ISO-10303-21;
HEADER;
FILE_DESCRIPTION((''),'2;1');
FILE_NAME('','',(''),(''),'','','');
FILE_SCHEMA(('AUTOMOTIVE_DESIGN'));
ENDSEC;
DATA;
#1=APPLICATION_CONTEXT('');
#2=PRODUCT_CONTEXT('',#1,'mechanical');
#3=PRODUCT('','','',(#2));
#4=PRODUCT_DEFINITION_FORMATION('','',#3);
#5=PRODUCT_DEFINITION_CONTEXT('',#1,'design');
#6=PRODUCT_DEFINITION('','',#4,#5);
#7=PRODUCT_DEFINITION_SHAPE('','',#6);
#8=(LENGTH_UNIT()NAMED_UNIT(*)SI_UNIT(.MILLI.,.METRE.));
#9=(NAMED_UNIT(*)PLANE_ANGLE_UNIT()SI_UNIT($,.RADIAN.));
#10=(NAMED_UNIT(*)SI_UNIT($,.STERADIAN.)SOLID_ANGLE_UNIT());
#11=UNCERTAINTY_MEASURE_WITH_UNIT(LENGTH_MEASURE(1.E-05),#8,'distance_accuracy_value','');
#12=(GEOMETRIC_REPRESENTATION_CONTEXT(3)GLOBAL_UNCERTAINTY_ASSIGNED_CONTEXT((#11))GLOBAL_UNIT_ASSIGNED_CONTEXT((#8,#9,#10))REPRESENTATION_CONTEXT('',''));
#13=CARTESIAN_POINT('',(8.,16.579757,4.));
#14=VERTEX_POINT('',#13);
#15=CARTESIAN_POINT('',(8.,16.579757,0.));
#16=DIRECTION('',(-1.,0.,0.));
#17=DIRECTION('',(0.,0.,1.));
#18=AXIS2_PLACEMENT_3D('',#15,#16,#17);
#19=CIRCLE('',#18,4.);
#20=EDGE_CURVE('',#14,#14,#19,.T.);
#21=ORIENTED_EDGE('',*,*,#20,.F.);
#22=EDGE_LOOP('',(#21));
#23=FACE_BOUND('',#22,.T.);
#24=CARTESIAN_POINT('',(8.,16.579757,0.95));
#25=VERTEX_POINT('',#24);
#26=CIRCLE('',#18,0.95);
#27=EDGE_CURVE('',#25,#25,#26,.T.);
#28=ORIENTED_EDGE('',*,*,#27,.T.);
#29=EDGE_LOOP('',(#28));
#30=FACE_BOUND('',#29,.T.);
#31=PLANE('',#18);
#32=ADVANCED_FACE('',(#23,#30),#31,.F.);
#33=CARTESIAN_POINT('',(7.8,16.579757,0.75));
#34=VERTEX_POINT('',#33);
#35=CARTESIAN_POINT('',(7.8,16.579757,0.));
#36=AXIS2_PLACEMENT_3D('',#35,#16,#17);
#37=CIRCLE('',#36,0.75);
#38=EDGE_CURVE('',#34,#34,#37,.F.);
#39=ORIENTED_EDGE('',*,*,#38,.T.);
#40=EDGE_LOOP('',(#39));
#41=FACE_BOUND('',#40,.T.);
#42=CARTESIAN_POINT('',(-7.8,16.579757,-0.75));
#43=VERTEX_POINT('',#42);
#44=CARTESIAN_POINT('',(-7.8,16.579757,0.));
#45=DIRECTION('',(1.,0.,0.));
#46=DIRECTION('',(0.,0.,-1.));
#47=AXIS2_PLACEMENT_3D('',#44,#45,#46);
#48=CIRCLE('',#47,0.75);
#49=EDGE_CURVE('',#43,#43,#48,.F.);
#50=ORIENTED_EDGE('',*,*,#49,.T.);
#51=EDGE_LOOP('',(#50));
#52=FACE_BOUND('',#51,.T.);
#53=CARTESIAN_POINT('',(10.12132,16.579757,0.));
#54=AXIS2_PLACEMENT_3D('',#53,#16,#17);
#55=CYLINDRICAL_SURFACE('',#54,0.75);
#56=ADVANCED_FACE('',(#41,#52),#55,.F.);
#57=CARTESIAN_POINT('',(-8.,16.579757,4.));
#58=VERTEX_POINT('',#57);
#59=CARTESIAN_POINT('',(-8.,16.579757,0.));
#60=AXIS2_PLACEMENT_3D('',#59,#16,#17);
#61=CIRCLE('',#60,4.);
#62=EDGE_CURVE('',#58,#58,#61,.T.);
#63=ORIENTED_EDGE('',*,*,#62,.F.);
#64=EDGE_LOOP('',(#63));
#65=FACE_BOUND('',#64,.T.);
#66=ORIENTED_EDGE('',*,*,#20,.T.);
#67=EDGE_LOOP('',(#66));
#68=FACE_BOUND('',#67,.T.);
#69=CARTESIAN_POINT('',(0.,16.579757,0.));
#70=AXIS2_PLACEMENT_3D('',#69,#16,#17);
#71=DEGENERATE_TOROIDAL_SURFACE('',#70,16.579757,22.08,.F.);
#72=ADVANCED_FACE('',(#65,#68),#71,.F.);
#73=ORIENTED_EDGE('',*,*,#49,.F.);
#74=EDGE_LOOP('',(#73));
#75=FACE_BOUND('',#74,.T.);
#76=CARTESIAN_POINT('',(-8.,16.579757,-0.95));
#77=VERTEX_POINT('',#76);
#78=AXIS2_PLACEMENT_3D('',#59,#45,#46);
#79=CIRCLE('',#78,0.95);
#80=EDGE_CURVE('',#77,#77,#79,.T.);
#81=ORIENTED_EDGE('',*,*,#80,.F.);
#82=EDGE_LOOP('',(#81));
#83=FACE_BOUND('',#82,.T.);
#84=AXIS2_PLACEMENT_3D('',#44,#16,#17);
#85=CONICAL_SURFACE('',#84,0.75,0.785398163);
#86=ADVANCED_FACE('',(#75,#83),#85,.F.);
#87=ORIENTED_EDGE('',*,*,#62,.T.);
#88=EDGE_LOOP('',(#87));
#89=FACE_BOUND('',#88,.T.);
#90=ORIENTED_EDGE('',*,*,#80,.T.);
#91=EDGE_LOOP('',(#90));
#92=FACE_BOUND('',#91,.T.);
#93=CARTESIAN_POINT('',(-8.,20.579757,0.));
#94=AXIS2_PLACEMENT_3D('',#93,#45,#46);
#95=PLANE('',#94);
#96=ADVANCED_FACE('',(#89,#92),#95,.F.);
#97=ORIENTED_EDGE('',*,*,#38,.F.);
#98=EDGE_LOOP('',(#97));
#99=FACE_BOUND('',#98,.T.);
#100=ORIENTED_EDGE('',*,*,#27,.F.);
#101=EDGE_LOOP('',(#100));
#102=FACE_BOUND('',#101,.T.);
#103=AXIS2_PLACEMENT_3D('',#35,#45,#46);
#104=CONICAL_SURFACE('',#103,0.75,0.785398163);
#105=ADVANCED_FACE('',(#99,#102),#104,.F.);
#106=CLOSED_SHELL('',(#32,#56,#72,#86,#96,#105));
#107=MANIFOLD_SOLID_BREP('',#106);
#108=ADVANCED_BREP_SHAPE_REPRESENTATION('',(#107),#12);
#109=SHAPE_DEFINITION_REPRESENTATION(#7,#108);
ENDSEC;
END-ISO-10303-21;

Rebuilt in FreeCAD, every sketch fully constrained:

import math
import FreeCAD as App
import Part
import Sketcher
Q = App.Units.Quantity


def edges_at(feature, points):
    """Names of the edges that pass closest to the given points."""
    edges = feature.Shape.Edges
    near = lambda p: min(range(len(edges)), key=lambda i: edges[i].distToShape(Part.Vertex(*p))[0])
    return sorted({f"Edge{near(p) + 1}" for p in points})

doc = App.newDocument("Part")
body = doc.addObject("PartDesign::Body", "Body")

sketch1 = doc.addObject("Sketcher::SketchObject", "Sketch")
body.addObject(sketch1)
sketch1.AttachmentSupport = (doc.XY_Plane, [""])
sketch1.MapMode = "FlatFace"
sketch1.addGeometry([
    Part.LineSegment(App.Vector(-8, 20.6, 0), App.Vector(-8, 16.6, 0)),
    Part.LineSegment(App.Vector(-8, 16.6, 0), App.Vector(8, 16.6, 0)),
    Part.LineSegment(App.Vector(8, 16.6, 0), App.Vector(8, 20.6, 0)),
    Part.ArcOfCircle(Part.Circle(App.Vector(0, 0, 0), App.Vector(0, 0, 1), 22.1), math.radians(69), math.radians(111)),
], False)
sketch1.addGeometry(Part.LineSegment(App.Vector(-8, 16.6, 0), App.Vector(8, 16.6, 0)), True)
sketch1.addConstraint([
    Sketcher.Constraint("Coincident", 0, 2, 1, 1),
    Sketcher.Constraint("Coincident", 1, 2, 2, 1),
    Sketcher.Constraint("Coincident", 2, 2, 3, 1),
    Sketcher.Constraint("Coincident", 3, 2, 0, 1),
    Sketcher.Constraint("Vertical", 0),
    Sketcher.Constraint("Horizontal", 1),
    Sketcher.Constraint("Vertical", 2),
    Sketcher.Constraint("Horizontal", 4),
    Sketcher.Constraint("Coincident", 3, 3, -1, 1),
    Sketcher.Constraint("Coincident", 4, 1, 0, 2),
    Sketcher.Constraint("Horizontal", 2, 2, 3, 2),
    Sketcher.Constraint("Vertical", 2, 2, 4, 2),
    Sketcher.Constraint("DistanceX", 1, 1, 1, 2, Q("16 mm")),
    Sketcher.Constraint("DistanceY", 0, 2, 0, 1, Q("4 mm")),
    Sketcher.Constraint("Radius", 3, Q("22.08 mm")),
])
revolution = doc.addObject("PartDesign::Revolution", "Revolution")
body.addObject(revolution)
revolution.Profile = sketch1
revolution.ReferenceAxis = (sketch1, ["Axis0"])
revolution.Angle = 360

sketch2 = doc.addObject("Sketcher::SketchObject", "Sketch001")
body.addObject(sketch2)
sketch2.AttachmentSupport = (doc.YZ_Plane, [""])
sketch2.MapMode = "FlatFace"
sketch2.AttachmentOffset = App.Placement(App.Vector(0, 0, -8), App.Rotation())
sketch2.addGeometry(Part.Circle(App.Vector(16.6, 0, 0), App.Vector(0, 0, 1), 0.8), False)
sketch2.addConstraint([
    Sketcher.Constraint("PointOnObject", 0, 3, -1),
    Sketcher.Constraint("Diameter", 0, Q("1.5 mm")),
    Sketcher.Constraint("DistanceX", -1, 1, 0, 3, Q("16.579757 mm")),
])
pocket1 = doc.addObject("PartDesign::Pocket", "Pocket")
body.addObject(pocket1)
pocket1.Profile = sketch2
pocket1.Length = 16
pocket1.Reversed = True
doc.recompute()

chamfer = doc.addObject("PartDesign::Chamfer", "Chamfer")
body.addObject(chamfer)
chamfer.Base = (pocket1, edges_at(pocket1, [(-8, 16.58, -0.75), (8, 16.58, -0.75)]))
chamfer.Size = 0.2

doc.recompute()
